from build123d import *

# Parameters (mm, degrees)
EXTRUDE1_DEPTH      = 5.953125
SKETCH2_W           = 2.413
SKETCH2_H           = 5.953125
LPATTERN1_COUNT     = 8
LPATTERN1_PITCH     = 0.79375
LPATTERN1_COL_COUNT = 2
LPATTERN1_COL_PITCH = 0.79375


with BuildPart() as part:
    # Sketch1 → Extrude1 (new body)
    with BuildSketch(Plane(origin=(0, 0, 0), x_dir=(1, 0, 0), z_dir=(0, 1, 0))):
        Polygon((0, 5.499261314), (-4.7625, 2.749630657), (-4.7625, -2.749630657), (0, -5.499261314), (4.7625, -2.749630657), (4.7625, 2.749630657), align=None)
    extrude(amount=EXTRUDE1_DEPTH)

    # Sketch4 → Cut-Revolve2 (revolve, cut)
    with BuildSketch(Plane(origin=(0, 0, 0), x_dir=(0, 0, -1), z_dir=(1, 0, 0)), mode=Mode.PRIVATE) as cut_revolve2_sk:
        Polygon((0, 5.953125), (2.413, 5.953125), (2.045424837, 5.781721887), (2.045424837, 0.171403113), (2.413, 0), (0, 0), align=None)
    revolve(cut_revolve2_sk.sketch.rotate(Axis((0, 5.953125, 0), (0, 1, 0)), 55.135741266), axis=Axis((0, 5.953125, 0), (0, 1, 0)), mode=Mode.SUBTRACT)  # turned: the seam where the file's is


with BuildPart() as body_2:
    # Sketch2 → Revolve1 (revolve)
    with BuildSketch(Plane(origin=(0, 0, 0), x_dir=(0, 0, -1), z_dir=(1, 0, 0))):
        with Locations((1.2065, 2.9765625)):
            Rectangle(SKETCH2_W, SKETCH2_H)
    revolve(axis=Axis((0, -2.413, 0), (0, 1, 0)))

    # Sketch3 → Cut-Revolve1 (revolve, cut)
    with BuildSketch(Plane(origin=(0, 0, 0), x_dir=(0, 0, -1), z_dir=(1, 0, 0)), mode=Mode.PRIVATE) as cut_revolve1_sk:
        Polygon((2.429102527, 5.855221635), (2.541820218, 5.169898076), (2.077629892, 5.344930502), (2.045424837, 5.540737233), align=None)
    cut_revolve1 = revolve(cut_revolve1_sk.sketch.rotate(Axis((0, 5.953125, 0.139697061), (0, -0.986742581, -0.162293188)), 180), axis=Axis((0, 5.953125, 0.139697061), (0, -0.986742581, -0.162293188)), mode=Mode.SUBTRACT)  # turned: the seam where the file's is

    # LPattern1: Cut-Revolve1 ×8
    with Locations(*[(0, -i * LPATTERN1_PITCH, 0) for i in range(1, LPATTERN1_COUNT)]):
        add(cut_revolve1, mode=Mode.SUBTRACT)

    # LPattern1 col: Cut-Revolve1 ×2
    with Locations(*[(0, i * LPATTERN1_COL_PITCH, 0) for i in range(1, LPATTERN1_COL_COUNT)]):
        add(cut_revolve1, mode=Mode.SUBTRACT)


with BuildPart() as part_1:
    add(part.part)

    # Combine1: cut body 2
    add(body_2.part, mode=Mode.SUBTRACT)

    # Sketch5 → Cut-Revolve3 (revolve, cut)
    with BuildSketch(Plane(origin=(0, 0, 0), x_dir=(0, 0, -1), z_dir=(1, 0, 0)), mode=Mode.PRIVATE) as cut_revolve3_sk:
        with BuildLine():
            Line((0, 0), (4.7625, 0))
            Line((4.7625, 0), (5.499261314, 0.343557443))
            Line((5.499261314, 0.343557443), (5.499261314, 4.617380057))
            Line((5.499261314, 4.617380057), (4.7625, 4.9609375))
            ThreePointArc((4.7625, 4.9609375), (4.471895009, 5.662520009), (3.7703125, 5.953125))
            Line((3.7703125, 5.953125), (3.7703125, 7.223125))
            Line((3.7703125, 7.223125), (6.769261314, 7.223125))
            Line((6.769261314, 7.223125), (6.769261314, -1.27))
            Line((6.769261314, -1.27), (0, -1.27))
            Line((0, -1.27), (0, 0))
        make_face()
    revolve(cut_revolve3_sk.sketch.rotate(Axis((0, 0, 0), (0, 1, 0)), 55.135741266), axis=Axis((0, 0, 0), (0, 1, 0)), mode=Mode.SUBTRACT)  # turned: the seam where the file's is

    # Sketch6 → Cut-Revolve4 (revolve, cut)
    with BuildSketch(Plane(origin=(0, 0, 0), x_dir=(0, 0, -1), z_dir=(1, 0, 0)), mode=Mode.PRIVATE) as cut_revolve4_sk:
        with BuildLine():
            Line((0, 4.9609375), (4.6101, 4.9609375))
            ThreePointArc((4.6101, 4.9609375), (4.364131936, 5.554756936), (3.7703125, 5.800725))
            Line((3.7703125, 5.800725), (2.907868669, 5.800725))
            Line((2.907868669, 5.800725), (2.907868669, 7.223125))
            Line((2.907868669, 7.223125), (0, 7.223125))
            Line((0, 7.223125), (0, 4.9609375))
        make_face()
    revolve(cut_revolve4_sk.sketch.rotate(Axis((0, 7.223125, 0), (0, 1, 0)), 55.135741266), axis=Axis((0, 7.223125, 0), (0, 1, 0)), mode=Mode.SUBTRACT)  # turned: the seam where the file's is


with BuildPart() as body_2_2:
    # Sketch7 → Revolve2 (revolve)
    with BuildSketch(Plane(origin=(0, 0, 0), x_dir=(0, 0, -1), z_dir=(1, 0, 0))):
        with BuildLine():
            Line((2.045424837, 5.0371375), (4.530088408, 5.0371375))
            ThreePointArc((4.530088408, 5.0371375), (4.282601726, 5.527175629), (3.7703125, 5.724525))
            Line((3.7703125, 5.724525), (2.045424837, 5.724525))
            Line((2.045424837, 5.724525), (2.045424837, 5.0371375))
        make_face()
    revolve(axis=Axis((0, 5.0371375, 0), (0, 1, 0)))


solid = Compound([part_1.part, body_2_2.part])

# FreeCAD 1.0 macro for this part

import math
import FreeCAD as App
import Part
import Sketcher

V = App.Vector
Q = App.Units.Quantity


def add_polygon(sketch, points):
    """Adds a closed chain of lines whose ends are joined by coincident constraints."""
    first, n = sketch.GeometryCount, len(points)
    for a, b in zip(points, points[1:] + points[:1]):
        sketch.addGeometry(Part.LineSegment(App.Vector(*a, 0), App.Vector(*b, 0)), False)
    for i in range(n):
        sketch.addConstraint(Sketcher.Constraint("Coincident", first + i, 2, first + (i + 1) % n, 1))

doc = App.newDocument("Part")
body = doc.addObject("PartDesign::Body", "Body")

# Sketch on XZ plane
sketch1 = doc.addObject("Sketcher::SketchObject", "Sketch")
body.addObject(sketch1)
sketch1.AttachmentSupport = (doc.XZ_Plane, [""])
sketch1.MapMode = "FlatFace"
add_polygon(sketch1, [(0, -5), (-5, -3), (-5, 3), (0, 5), (5, 3), (5, -3)])  # lines 0-5
sketch1.addConstraint(Sketcher.Constraint("Vertical", 1))
sketch1.addConstraint(Sketcher.Constraint("Vertical", 4))
sketch1.addConstraint(Sketcher.Constraint("Symmetric", 0, 2, 3, 2, -1, 1))
sketch1.addConstraint(Sketcher.Constraint("Symmetric", 2, 2, 5, 2, -1, 1))
sketch1.addConstraint(Sketcher.Constraint("PointOnObject", 2, 2, -2))
sketch1.addConstraint(Sketcher.Constraint("Parallel", 2, 5))
sketch1.addConstraint(Sketcher.Constraint("Horizontal", 1, 2, 3, 2))
sketch1.addConstraint(Sketcher.Constraint("Angle", 0, Q("150 deg")))
sketch1.addConstraint(Sketcher.Constraint("DistanceX", 0, 2, -1, 1, Q("0.1875 in")))
sketch1.addConstraint(Sketcher.Constraint("DistanceY", 1, 1, 1, 2, Q("5.499261 mm")))
pad1 = doc.addObject("PartDesign::Pad", "Pad")
body.addObject(pad1)
pad1.Profile = sketch1
pad1.Length = Q("0.234375 in")
pad1.Reversed = True

# Sketch on YZ plane
sketch2 = doc.addObject("Sketcher::SketchObject", "Sketch001")
body.addObject(sketch2)
sketch2.AttachmentSupport = (doc.YZ_Plane, [""])
sketch2.MapMode = "FlatFace"
add_polygon(sketch2, [(5.95, -2.41), (5.95, 0), (0, 0), (0, -2.41), (0.17, -2.05), (5.78, -2.05)])  # lines 0-5
sketch2.addConstraint(Sketcher.Constraint("Vertical", 0))
sketch2.addConstraint(Sketcher.Constraint("Horizontal", 1))
sketch2.addConstraint(Sketcher.Constraint("Vertical", 2))
sketch2.addConstraint(Sketcher.Constraint("Horizontal", 4))
sketch2.addConstraint(Sketcher.Constraint("Coincident", 1, 2, -1, 1))
sketch2.addConstraint(Sketcher.Constraint("Horizontal", 2, 2, 5, 2))
sketch2.addConstraint(Sketcher.Constraint("Equal", 3, 5))
sketch2.addConstraint(Sketcher.Constraint("Angle", 3, Q("65 deg")))
sketch2.addConstraint(Sketcher.Constraint("DistanceX", 1, 2, 1, 1, Q("0.234375 in")))
sketch2.addConstraint(Sketcher.Constraint("DistanceY", 0, 1, 0, 2, Q("0.095 in")))
sketch2.addConstraint(Sketcher.Constraint("DistanceX", 4, 1, 4, 2, Q("5.610319 mm")))
groove = doc.addObject("PartDesign::Groove", "Groove")
body.addObject(groove)
groove.Profile = sketch2
groove.ReferenceAxis = (sketch2, ["H_Axis"])
groove.Angle = 360
body2 = doc.addObject("PartDesign::Body", "Body001")

# Sketch on YZ plane
sketch3 = doc.addObject("Sketcher::SketchObject", "Sketch002")
body2.addObject(sketch3)
sketch3.AttachmentSupport = (doc.getObject("YZ_Plane001"), [""])
sketch3.MapMode = "FlatFace"
add_polygon(sketch3, [(6, 0), (0, 0), (0, -2.4), (6, -2.4)])  # lines 0-3
sketch3.addConstraint(Sketcher.Constraint("Horizontal", 0))
sketch3.addConstraint(Sketcher.Constraint("Vertical", 1))
sketch3.addConstraint(Sketcher.Constraint("Horizontal", 2))
sketch3.addConstraint(Sketcher.Constraint("Vertical", 3))
sketch3.addConstraint(Sketcher.Constraint("Coincident", 0, 2, -1, 1))
sketch3.addConstraint(Sketcher.Constraint("DistanceX", 0, 2, 0, 1, Q("0.234375 in")))
sketch3.addConstraint(Sketcher.Constraint("DistanceY", 1, 2, 1, 1, Q("0.095 in")))
revolution = doc.addObject("PartDesign::Revolution", "Revolution")
body2.addObject(revolution)
revolution.Profile = sketch3
revolution.ReferenceAxis = (sketch3, ["H_Axis"])
revolution.Angle = 360

# Sketch on YZ plane
sketch4 = doc.addObject("Sketcher::SketchObject", "Sketch003")
body2.addObject(sketch4)
sketch4.AttachmentSupport = (doc.getObject("YZ_Plane001"), [""])
sketch4.MapMode = "FlatFace"
add_polygon(sketch4, [(5.17, -2.54), (5.86, -2.43), (5.54, -2.05), (5.34, -2.08)])  # lines 0-3
sketch4.addGeometry(Part.LineSegment(V(5.45, 0.06, 0), V(4.76, -0.06, 0)), True)  # axis
sketch4.addConstraint(Sketcher.Constraint("Parallel", 0, 2))
sketch4.addConstraint(Sketcher.Constraint("Parallel", 2, 4))
sketch4.addConstraint(Sketcher.Constraint("Equal", 1, 3))
sketch4.addConstraint(Sketcher.Constraint("Equal", 0, 4))
sketch4.addConstraint(Sketcher.Constraint("DistanceX", 3, 2, 1, 2, Q("0.0146 in")))
sketch4.addConstraint(Sketcher.Constraint("DistanceX", -1, 1, 3, 2, Q("5.169898 mm")))
sketch4.addConstraint(Sketcher.Constraint("DistanceX", 2, 2, 4, 1, Q("0.101498 mm")))
sketch4.addConstraint(Sketcher.Constraint("Distance", 0, Q("0.694531 mm")))
sketch4.addConstraint(Sketcher.Constraint("DistanceX", -1, 1, 0, 2, Q("5.855222 mm")))
sketch4.addConstraint(Sketcher.Constraint("DistanceX", -1, 1, 2, 2, Q("5.344931 mm")))
sketch4.addConstraint(Sketcher.Constraint("DistanceY", 2, 2, -1, 1, Q("2.07763 mm")))
sketch4.addConstraint(Sketcher.Constraint("DistanceY", -1, 1, 4, 1, Q("0.056359 mm")))
groove2 = doc.addObject("PartDesign::Groove", "Groove001")
body2.addObject(groove2)
groove2.Profile = sketch4
groove2.ReferenceAxis = (sketch4, ["Axis0"])
groove2.Angle = 360
doc.recompute()

linearpattern = doc.addObject("PartDesign::LinearPattern", "LinearPattern")
body2.addObject(linearpattern)
linearpattern.Originals = [groove2]
linearpattern.Direction = (doc.getObject("Y_Axis001"), [""])
linearpattern.Mode = "offset"
linearpattern.Offset = Q("0.03125 in")
linearpattern.Occurrences = 8
linearpattern.Reversed = True
body2.Tip = linearpattern
doc.recompute()

linearpattern2 = doc.addObject("PartDesign::LinearPattern", "LinearPattern001")
body2.addObject(linearpattern2)
linearpattern2.Originals = [groove2]
linearpattern2.Direction = (doc.getObject("Y_Axis001"), [""])
linearpattern2.Mode = "offset"
linearpattern2.Offset = Q("0.03125 in")
linearpattern2.Occurrences = 2
body2.Tip = linearpattern2
doc.recompute()

boolean = doc.addObject("PartDesign::Boolean", "Boolean")
body.addObject(boolean)
boolean.Type = "Cut"
boolean.addObjects([body2])

# Sketch on YZ plane
sketch5 = doc.addObject("Sketcher::SketchObject", "Sketch004")
body.addObject(sketch5)
sketch5.AttachmentSupport = (doc.YZ_Plane, [""])
sketch5.MapMode = "FlatFace"
sketch5.addGeometry(Part.LineSegment(V(0, -4.8, 0), V(0, 0, 0)), False)
sketch5.addGeometry(Part.LineSegment(V(0, 0, 0), V(-1.3, 0, 0)), False)
sketch5.addGeometry(Part.LineSegment(V(-1.3, 0, 0), V(-1.3, -6.8, 0)), False)
sketch5.addGeometry(Part.LineSegment(V(-1.3, -6.8, 0), V(7.2, -6.8, 0)), False)
sketch5.addGeometry(Part.LineSegment(V(7.2, -6.8, 0), V(7.2, -3.8, 0)), False)
sketch5.addGeometry(Part.LineSegment(V(7.2, -3.8, 0), V(6, -3.8, 0)), False)
sketch5.addGeometry(Part.ArcOfCircle(Part.Circle(V(5, -3.8, 0), V(0, 0, 1), 1), math.radians(-90), math.radians(0)), False)
sketch5.addGeometry(Part.LineSegment(V(5, -4.8, 0), V(4.6, -5.5, 0)), False)
sketch5.addGeometry(Part.LineSegment(V(4.6, -5.5, 0), V(0.3, -5.5, 0)), False)
sketch5.addGeometry(Part.LineSegment(V(0.3, -5.5, 0), V(0, -4.8, 0)), False)
sketch5.addConstraint(Sketcher.Constraint("Coincident", 0, 2, 1, 1))
sketch5.addConstraint(Sketcher.Constraint("Coincident", 1, 2, 2, 1))
sketch5.addConstraint(Sketcher.Constraint("Coincident", 2, 2, 3, 1))
sketch5.addConstraint(Sketcher.Constraint("Coincident", 3, 2, 4, 1))
sketch5.addConstraint(Sketcher.Constraint("Coincident", 4, 2, 5, 1))
sketch5.addConstraint(Sketcher.Constraint("Coincident", 5, 2, 6, 2))
sketch5.addConstraint(Sketcher.Constraint("Coincident", 6, 1, 7, 1))
sketch5.addConstraint(Sketcher.Constraint("Coincident", 7, 2, 8, 1))
sketch5.addConstraint(Sketcher.Constraint("Coincident", 8, 2, 9, 1))
sketch5.addConstraint(Sketcher.Constraint("Coincident", 9, 2, 0, 1))
sketch5.addConstraint(Sketcher.Constraint("Vertical", 0))
sketch5.addConstraint(Sketcher.Constraint("Horizontal", 1))
sketch5.addConstraint(Sketcher.Constraint("Vertical", 2))
sketch5.addConstraint(Sketcher.Constraint("Horizontal", 3))
sketch5.addConstraint(Sketcher.Constraint("Vertical", 4))
sketch5.addConstraint(Sketcher.Constraint("Horizontal", 5))
sketch5.addConstraint(Sketcher.Constraint("Horizontal", 8))
sketch5.addConstraint(Sketcher.Constraint("Coincident", 0, 2, -1, 1))
sketch5.addConstraint(Sketcher.Constraint("Horizontal", 6, 3, 4, 2))
sketch5.addConstraint(Sketcher.Constraint("Horizontal", 6, 1, 9, 2))
sketch5.addConstraint(Sketcher.Constraint("Equal", 1, 5))
sketch5.addConstraint(Sketcher.Constraint("Equal", 7, 9))
sketch5.addConstraint(Sketcher.Constraint("Angle", 7, Q("-115 deg")))
sketch5.addConstraint(Sketcher.Constraint("DistanceX", 1, 2, 1, 1, Q("0.05 in")))
sketch5.addConstraint(Sketcher.Constraint("DistanceY", 0, 1, 0, 2, Q("0.1875 in")))
sketch5.addConstraint(Sketcher.Constraint("DistanceY", 3, 2, 7, 2, Q("0.05 in")))
sketch5.addConstraint(Sketcher.Constraint("DistanceX", -1, 1, 5, 2, Q("0.234375 in")))
sketch5.addConstraint(Sketcher.Constraint("Radius", 6, Q("0.992188 mm")))
sketch5.addConstraint(Sketcher.Constraint("DistanceY", 2, 2, 2, 1, Q("6.769261 mm")))
sketch5.addConstraint(Sketcher.Constraint("DistanceX", 8, 2, 8, 1, Q("4.273823 mm")))
groove3 = doc.addObject("PartDesign::Groove", "Groove002")
body.addObject(groove3)
groove3.Profile = sketch5
groove3.ReferenceAxis = (sketch5, ["H_Axis"])
groove3.Angle = 360

# Sketch on YZ plane
sketch6 = doc.addObject("Sketcher::SketchObject", "Sketch005")
body.addObject(sketch6)
sketch6.AttachmentSupport = (doc.YZ_Plane, [""])
sketch6.MapMode = "FlatFace"
sketch6.addGeometry(Part.LineSegment(V(5, 0, 0), V(5, -4.6, 0)), False)
sketch6.addGeometry(Part.ArcOfCircle(Part.Circle(V(5, -3.8, 0), V(0, 0, 1), 0.8), math.radians(-90), math.radians(0)), False)
sketch6.addGeometry(Part.LineSegment(V(5.8, -3.8, 0), V(5.8, -2.9, 0)), False)
sketch6.addGeometry(Part.LineSegment(V(5.8, -2.9, 0), V(7.2, -2.9, 0)), False)
sketch6.addGeometry(Part.LineSegment(V(7.2, -2.9, 0), V(7.2, 0, 0)), False)
sketch6.addGeometry(Part.LineSegment(V(7.2, 0, 0), V(5, 0, 0)), False)
sketch6.addConstraint(Sketcher.Constraint("Coincident", 0, 2, 1, 1))
sketch6.addConstraint(Sketcher.Constraint("Tangent", 1, 2, 2, 1))
sketch6.addConstraint(Sketcher.Constraint("Coincident", 2, 2, 3, 1))
sketch6.addConstraint(Sketcher.Constraint("Coincident", 3, 2, 4, 1))
sketch6.addConstraint(Sketcher.Constraint("Coincident", 4, 2, 5, 1))
sketch6.addConstraint(Sketcher.Constraint("Coincident", 5, 2, 0, 1))
sketch6.addConstraint(Sketcher.Constraint("Vertical", 0))
sketch6.addConstraint(Sketcher.Constraint("Vertical", 2))
sketch6.addConstraint(Sketcher.Constraint("Horizontal", 3))
sketch6.addConstraint(Sketcher.Constraint("Vertical", 4))
sketch6.addConstraint(Sketcher.Constraint("Horizontal", 5))
sketch6.addConstraint(Sketcher.Constraint("PointOnObject", 4, 2, -1))
sketch6.addConstraint(Sketcher.Constraint("Vertical", 1, 3, 0, 2))
sketch6.addConstraint(Sketcher.Constraint("DistanceX", 3, 1, 3, 2, Q("0.056 in")))
sketch6.addConstraint(Sketcher.Constraint("DistanceY", 0, 2, 0, 1, Q("0.1815 in")))
sketch6.addConstraint(Sketcher.Constraint("Radius", 1, Q("0.839788 mm")))
sketch6.addConstraint(Sketcher.Constraint("DistanceY", 4, 1, 4, 2, Q("2.907869 mm")))
sketch6.addConstraint(Sketcher.Constraint("DistanceX", -1, 1, 1, 3, Q("4.960938 mm")))
groove4 = doc.addObject("PartDesign::Groove", "Groove003")
body.addObject(groove4)
groove4.Profile = sketch6
groove4.ReferenceAxis = (sketch6, ["H_Axis"])
groove4.Angle = 360
body3 = doc.addObject("PartDesign::Body", "Body002")

# Sketch on YZ plane
sketch7 = doc.addObject("Sketcher::SketchObject", "Sketch006")
body3.addObject(sketch7)
sketch7.AttachmentSupport = (doc.getObject("YZ_Plane002"), [""])
sketch7.MapMode = "FlatFace"
sketch7.addGeometry(Part.LineSegment(V(5, -2, 0), V(5, -4.5, 0)), False)
sketch7.addGeometry(Part.ArcOfCircle(Part.Circle(V(5, -3.8, 0), V(0, 0, 1), 0.8), math.radians(-84), math.radians(0)), False)
sketch7.addGeometry(Part.LineSegment(V(5.7, -3.8, 0), V(5.7, -2, 0)), False)
sketch7.addGeometry(Part.LineSegment(V(5.7, -2, 0), V(5, -2, 0)), False)
sketch7.addConstraint(Sketcher.Constraint("Coincident", 0, 2, 1, 1))
sketch7.addConstraint(Sketcher.Constraint("Tangent", 1, 2, 2, 1))
sketch7.addConstraint(Sketcher.Constraint("Coincident", 2, 2, 3, 1))
sketch7.addConstraint(Sketcher.Constraint("Coincident", 3, 2, 0, 1))
sketch7.addConstraint(Sketcher.Constraint("Vertical", 0))
sketch7.addConstraint(Sketcher.Constraint("Vertical", 2))
sketch7.addConstraint(Sketcher.Constraint("Horizontal", 3))
sketch7.addConstraint(Sketcher.Constraint("DistanceX", 1, 3, 0, 2, Q("0.003 in")))
sketch7.addConstraint(Sketcher.Constraint("Radius", 1, Q("0.763588 mm")))
sketch7.addConstraint(Sketcher.Constraint("DistanceY", 0, 2, 0, 1, Q("2.484664 mm")))
sketch7.addConstraint(Sketcher.Constraint("DistanceY", 0, 2, -1, 1, Q("4.530088 mm")))
sketch7.addConstraint(Sketcher.Constraint("DistanceX", -1, 1, 1, 3, Q("4.960937 mm")))
revolution2 = doc.addObject("PartDesign::Revolution", "Revolution001")
body3.addObject(revolution2)
revolution2.Profile = sketch7
revolution2.ReferenceAxis = (sketch7, ["H_Axis"])
revolution2.Angle = 360

doc.recompute()
